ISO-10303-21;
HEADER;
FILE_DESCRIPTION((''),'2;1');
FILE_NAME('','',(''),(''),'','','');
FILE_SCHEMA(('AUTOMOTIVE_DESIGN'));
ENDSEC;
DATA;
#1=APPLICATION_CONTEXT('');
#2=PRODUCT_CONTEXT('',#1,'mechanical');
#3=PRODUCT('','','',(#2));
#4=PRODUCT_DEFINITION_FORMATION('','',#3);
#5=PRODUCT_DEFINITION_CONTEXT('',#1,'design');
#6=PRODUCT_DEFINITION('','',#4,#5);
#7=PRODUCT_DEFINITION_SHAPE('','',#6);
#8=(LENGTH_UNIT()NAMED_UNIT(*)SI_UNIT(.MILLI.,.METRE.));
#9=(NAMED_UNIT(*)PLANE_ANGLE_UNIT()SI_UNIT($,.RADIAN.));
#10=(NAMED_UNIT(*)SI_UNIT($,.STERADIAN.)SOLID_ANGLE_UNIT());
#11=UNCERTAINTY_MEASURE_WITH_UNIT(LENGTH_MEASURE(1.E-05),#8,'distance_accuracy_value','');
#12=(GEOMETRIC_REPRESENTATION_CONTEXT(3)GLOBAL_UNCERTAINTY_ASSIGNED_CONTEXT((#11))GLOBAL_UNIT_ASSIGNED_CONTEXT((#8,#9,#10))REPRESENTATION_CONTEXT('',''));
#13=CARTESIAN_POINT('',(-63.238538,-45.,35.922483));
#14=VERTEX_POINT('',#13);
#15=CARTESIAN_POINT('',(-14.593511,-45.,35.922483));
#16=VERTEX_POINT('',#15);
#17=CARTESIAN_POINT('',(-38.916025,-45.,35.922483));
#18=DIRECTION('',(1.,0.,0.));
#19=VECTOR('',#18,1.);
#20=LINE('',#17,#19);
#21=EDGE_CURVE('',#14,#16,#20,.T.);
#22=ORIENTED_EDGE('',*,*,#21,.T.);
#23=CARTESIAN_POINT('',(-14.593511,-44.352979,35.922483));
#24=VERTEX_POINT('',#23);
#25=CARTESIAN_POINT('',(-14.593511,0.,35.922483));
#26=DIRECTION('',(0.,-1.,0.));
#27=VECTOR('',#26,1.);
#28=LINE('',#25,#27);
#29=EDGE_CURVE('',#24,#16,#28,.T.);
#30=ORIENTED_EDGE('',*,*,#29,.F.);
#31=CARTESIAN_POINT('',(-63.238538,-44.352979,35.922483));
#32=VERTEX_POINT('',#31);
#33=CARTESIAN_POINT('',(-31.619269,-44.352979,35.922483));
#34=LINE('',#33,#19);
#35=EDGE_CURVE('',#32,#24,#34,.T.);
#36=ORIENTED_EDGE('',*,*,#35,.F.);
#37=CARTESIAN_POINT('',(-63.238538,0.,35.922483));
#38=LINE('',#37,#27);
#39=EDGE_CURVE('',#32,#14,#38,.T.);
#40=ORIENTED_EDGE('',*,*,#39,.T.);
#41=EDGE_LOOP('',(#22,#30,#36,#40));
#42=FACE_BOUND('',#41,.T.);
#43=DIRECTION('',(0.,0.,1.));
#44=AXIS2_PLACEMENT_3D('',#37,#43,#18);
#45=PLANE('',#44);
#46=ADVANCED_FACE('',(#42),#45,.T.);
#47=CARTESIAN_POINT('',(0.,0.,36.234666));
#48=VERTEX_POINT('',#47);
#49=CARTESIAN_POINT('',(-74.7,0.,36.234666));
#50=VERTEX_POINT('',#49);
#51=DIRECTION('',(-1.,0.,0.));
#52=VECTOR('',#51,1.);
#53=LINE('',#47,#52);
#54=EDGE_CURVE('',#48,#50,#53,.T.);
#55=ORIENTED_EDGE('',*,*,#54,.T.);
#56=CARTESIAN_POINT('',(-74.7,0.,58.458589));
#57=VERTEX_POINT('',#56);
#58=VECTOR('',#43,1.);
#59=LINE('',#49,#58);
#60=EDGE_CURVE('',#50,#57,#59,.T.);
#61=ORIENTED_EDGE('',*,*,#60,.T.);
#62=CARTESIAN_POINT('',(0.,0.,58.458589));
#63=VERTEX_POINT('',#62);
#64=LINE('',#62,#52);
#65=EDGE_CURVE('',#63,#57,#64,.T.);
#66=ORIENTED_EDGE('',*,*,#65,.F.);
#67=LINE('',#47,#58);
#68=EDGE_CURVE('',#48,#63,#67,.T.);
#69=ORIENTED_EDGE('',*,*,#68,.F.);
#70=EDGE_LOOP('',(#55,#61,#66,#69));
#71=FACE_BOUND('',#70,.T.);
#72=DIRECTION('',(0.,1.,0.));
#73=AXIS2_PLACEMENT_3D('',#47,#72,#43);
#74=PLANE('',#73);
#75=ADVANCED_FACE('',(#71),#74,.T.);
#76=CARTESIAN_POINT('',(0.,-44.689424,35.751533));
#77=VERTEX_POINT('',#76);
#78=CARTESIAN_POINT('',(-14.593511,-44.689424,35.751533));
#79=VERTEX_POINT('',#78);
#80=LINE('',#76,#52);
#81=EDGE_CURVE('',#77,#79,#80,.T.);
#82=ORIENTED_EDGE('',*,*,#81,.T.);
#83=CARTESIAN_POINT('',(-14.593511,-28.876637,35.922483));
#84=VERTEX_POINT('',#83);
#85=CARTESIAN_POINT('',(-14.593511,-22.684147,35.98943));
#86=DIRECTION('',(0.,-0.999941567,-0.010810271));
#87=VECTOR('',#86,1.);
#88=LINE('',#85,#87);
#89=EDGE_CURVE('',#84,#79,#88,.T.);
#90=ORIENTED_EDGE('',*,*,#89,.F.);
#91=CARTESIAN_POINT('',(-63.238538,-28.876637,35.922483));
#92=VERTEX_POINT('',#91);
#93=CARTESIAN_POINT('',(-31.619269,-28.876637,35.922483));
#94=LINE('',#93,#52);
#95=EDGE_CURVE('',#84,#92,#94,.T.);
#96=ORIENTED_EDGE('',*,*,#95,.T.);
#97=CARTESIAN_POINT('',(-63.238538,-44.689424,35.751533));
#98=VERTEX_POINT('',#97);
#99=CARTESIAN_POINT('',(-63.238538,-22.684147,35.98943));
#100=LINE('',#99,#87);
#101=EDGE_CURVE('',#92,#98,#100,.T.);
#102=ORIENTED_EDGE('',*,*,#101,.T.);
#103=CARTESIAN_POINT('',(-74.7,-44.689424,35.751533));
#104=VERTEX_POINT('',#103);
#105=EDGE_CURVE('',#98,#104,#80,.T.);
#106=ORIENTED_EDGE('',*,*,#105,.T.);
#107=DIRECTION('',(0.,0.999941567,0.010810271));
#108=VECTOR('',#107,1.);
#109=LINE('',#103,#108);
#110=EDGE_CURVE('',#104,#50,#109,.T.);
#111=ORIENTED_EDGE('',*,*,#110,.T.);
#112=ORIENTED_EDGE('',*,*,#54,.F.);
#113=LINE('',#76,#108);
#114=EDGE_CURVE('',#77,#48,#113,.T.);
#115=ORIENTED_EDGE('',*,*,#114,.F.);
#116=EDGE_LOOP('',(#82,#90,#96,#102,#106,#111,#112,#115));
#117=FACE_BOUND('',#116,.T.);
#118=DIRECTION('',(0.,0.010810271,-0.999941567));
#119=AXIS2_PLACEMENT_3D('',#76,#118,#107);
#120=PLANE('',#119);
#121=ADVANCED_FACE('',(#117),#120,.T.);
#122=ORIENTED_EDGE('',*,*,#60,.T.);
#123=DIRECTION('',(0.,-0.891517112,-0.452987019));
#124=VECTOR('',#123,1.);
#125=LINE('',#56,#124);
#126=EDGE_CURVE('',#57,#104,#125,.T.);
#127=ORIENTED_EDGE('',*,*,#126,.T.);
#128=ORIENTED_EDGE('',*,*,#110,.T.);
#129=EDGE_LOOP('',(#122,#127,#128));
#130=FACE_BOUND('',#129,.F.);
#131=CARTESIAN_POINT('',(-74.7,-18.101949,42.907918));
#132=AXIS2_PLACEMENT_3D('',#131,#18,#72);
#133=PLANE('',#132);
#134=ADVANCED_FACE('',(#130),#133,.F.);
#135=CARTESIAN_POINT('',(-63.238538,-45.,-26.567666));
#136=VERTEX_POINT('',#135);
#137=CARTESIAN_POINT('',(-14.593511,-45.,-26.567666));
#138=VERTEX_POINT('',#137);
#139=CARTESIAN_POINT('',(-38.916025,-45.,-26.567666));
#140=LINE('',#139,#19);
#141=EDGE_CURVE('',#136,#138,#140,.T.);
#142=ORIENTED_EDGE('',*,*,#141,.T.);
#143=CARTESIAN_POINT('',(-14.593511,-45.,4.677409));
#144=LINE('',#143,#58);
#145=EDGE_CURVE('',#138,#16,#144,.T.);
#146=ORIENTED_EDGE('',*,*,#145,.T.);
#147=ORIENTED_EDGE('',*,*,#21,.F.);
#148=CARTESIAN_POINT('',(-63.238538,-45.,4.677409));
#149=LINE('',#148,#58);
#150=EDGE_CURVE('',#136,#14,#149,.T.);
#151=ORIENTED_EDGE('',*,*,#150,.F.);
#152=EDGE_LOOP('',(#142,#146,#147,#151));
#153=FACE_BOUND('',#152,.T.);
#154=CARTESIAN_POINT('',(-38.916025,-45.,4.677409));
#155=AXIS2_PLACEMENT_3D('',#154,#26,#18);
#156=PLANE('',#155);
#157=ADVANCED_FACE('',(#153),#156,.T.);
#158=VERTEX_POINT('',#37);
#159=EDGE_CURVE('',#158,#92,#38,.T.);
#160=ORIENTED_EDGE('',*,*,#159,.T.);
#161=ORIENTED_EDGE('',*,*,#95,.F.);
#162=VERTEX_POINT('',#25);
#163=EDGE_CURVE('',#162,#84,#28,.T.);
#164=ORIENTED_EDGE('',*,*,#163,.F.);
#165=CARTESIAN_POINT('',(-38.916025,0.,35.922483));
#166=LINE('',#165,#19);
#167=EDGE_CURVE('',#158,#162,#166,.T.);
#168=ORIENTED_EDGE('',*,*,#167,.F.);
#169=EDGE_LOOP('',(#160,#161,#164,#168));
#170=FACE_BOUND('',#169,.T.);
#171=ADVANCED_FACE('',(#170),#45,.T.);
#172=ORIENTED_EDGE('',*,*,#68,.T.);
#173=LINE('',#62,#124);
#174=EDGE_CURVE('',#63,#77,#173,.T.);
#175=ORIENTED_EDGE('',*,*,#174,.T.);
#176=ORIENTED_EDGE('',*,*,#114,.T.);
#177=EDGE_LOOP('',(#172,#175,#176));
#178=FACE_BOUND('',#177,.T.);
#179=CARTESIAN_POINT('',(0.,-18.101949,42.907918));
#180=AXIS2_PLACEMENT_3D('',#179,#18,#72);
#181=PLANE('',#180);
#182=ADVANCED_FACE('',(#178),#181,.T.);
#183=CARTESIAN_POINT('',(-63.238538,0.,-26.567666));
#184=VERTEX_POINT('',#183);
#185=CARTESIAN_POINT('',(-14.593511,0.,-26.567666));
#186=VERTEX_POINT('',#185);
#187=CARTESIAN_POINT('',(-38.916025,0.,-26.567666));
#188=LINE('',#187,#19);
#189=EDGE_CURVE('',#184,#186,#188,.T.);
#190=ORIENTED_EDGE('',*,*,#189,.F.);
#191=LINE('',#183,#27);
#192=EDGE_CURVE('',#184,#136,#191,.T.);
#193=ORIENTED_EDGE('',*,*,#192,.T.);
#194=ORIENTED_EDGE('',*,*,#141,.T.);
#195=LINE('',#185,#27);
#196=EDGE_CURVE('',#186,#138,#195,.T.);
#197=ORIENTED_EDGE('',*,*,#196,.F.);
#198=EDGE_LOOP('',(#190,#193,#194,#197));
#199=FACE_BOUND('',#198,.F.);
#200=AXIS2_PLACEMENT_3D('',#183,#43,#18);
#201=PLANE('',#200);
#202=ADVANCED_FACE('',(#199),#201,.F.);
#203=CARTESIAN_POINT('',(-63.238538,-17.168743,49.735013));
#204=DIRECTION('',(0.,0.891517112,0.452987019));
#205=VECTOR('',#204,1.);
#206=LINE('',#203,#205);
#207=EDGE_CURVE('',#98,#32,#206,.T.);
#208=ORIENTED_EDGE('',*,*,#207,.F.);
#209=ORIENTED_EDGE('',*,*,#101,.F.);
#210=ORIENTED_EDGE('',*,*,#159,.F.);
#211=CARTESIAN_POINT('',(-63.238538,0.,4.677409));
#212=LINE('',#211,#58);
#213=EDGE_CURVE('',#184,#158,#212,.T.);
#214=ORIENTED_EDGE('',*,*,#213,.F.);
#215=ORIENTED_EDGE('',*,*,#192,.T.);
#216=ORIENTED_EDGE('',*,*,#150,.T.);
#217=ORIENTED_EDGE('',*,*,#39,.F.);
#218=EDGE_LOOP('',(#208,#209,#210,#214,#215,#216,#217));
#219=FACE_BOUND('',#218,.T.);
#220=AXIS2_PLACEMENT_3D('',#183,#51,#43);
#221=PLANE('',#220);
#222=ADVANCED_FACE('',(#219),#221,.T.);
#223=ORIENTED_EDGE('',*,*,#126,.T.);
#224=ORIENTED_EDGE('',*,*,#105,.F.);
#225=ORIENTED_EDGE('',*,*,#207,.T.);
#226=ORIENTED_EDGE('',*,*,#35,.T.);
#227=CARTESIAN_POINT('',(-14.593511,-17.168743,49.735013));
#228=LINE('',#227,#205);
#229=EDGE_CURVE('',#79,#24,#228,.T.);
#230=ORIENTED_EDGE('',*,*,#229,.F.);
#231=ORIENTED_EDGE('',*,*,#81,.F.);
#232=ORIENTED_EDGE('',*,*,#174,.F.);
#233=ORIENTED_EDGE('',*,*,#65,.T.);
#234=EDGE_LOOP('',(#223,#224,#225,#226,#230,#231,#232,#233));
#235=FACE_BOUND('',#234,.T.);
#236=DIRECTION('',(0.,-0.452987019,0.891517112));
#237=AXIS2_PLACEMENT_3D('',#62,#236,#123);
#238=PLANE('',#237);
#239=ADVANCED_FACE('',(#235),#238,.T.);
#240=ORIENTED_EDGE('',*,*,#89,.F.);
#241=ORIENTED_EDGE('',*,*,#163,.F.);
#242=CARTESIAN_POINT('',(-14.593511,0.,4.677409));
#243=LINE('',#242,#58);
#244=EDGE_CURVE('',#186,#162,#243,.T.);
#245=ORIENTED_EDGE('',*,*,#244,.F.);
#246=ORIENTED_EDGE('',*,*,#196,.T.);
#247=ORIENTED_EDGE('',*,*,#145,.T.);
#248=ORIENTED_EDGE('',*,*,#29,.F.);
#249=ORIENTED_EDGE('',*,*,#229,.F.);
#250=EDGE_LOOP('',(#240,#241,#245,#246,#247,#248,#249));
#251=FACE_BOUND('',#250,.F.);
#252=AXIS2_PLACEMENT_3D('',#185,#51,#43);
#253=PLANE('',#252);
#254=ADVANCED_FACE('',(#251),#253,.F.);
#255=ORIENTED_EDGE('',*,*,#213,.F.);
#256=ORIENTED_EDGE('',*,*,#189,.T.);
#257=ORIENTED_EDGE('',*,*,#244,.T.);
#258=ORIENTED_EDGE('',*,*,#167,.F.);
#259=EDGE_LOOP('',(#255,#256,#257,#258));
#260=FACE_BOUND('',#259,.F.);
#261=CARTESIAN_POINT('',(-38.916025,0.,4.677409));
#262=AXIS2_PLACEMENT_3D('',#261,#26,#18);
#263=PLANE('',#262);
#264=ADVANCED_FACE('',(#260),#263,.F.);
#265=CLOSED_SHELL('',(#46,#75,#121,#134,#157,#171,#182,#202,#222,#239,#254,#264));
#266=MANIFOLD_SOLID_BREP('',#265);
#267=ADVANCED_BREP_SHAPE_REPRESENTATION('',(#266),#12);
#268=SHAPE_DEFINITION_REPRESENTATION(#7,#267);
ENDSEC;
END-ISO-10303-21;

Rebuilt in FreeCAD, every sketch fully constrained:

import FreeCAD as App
import Part
import Sketcher

V = App.Vector
Q = App.Units.Quantity

doc = App.newDocument("Part")
body = doc.addObject("PartDesign::Body", "Body")

sketch1 = body.newObject("Sketcher::SketchObject", "Sketch")
sketch1.AttachmentSupport = (doc.getObject("XZ_Plane"), [""])
sketch1.MapMode = "FlatFace"
sketch1.addGeometry([
    Part.LineSegment(V(-63, 36, 0), V(-63, -27, 0)),
    Part.LineSegment(V(-63, -27, 0), V(-15, -27, 0)),
    Part.LineSegment(V(-15, -27, 0), V(-15, 36, 0)),
    Part.LineSegment(V(-15, 36, 0), V(-63, 36, 0)),
], False)
sketch1.addConstraint([
    Sketcher.Constraint("Coincident", 0, 2, 1, 1),
    Sketcher.Constraint("Coincident", 1, 2, 2, 1),
    Sketcher.Constraint("Coincident", 2, 2, 3, 1),
    Sketcher.Constraint("Coincident", 3, 2, 0, 1),
    Sketcher.Constraint("Vertical", 0),
    Sketcher.Constraint("Horizontal", 1),
    Sketcher.Constraint("Vertical", 2),
    Sketcher.Constraint("Horizontal", 3),
    Sketcher.Constraint("DistanceY", 0, 2, 0, 1, Q("62.490149 mm")),
    Sketcher.Constraint("DistanceX", 1, 1, 1, 2, Q("48.645027 mm")),
    Sketcher.Constraint("DistanceX", 0, 2, -1, 1, Q("63.238538 mm")),
    Sketcher.Constraint("DistanceY", 0, 2, -1, 1, Q("26.567666 mm")),
])
pad1 = body.newObject("PartDesign::Pad", "Pad")
pad1.Profile = sketch1
pad1.Length = 45

sketch2 = body.newObject("Sketcher::SketchObject", "Sketch001")
sketch2.AttachmentSupport = (doc.getObject("YZ_Plane"), [""])
sketch2.MapMode = "FlatFace"
sketch2.addGeometry([
    Part.LineSegment(V(0, 58, 0), V(-45, 36, 0)),
    Part.LineSegment(V(-45, 36, 0), V(0, 36, 0)),
    Part.LineSegment(V(0, 36, 0), V(0, 58, 0)),
], False)
sketch2.addConstraint([
    Sketcher.Constraint("Coincident", 0, 2, 1, 1),
    Sketcher.Constraint("Coincident", 1, 2, 2, 1),
    Sketcher.Constraint("Coincident", 2, 2, 0, 1),
    Sketcher.Constraint("Vertical", 2),
    Sketcher.Constraint("PointOnObject", 1, 2, -2),
    Sketcher.Constraint("DistanceY", 2, 1, 2, 2, Q("22.223923 mm")),
    Sketcher.Constraint("DistanceY", -1, 1, 2, 2, Q("58.458589 mm")),
    Sketcher.Constraint("Distance", 0, Q("50.127388 mm")),
    Sketcher.Constraint("Distance", 1, Q("44.692035 mm")),
])
pad2 = body.newObject("PartDesign::Pad", "Pad001")
pad2.Profile = sketch2
pad2.Length = 74.7
pad2.Reversed = True

doc.recompute()
